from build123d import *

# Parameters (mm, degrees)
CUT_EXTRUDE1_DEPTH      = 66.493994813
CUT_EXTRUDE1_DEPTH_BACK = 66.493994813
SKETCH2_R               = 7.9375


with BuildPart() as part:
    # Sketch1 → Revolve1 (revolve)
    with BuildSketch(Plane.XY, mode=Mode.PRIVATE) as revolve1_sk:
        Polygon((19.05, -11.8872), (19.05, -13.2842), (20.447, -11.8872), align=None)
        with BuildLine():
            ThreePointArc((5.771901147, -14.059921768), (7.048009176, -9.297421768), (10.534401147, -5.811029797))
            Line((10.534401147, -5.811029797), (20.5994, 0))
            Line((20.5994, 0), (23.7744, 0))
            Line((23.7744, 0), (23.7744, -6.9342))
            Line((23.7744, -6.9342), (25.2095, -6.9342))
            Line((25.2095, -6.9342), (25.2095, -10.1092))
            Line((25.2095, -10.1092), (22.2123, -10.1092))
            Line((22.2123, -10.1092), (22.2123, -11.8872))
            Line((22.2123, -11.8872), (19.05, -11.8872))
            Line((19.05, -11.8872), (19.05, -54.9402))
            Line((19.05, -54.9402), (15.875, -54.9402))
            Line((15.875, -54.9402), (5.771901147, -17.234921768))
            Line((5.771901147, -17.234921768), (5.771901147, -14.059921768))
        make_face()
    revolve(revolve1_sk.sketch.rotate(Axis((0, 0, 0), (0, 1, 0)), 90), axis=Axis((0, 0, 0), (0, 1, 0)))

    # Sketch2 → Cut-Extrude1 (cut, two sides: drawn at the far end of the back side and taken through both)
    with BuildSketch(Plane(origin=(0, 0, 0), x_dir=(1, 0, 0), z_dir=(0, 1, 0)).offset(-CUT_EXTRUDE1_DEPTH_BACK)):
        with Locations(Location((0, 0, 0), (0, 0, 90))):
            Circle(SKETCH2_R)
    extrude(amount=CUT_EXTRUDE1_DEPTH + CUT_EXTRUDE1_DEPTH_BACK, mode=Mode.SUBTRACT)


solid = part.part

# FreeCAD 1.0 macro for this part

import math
import FreeCAD as App
import Part
import Sketcher

V = App.Vector
Q = App.Units.Quantity

doc = App.newDocument("Part")
body = doc.addObject("PartDesign::Body", "Body")

# Sketch on XY plane
sketch1 = body.newObject("Sketcher::SketchObject", "Sketch")
sketch1.AttachmentSupport = (doc.getObject("XY_Plane"), [""])
sketch1.MapMode = "FlatFace"
sketch1.addGeometry([
    Part.LineSegment(V(19.1, -13.3, 0), V(20.4, -11.9, 0)),  # 0
    Part.LineSegment(V(20.4, -11.9, 0), V(22.2, -11.9, 0)),  # 1
    Part.LineSegment(V(22.2, -11.9, 0), V(22.2, -10.1, 0)),  # 2
    Part.LineSegment(V(22.2, -10.1, 0), V(25.2, -10.1, 0)),  # 3
    Part.LineSegment(V(25.2, -10.1, 0), V(25.2, -6.9, 0)),  # 4
    Part.LineSegment(V(25.2, -6.9, 0), V(23.8, -6.9, 0)),  # 5
    Part.LineSegment(V(23.8, -6.9, 0), V(23.8, 0, 0)),  # 6
    Part.LineSegment(V(23.8, 0, 0), V(20.6, 0, 0)),  # 7
    Part.LineSegment(V(20.6, 0, 0), V(10.5, -5.8, 0)),  # 8
    Part.ArcOfCircle(Part.Circle(V(15.3, -14.1, 0), V(0, 0, 1), 9.5), math.radians(120), math.radians(180)),  # 9
    Part.LineSegment(V(5.8, -14.1, 0), V(5.8, -17.2, 0)),  # 10
    Part.LineSegment(V(5.8, -17.2, 0), V(15.9, -54.9, 0)),  # 11
    Part.LineSegment(V(15.9, -54.9, 0), V(19.1, -54.9, 0)),  # 12
    Part.LineSegment(V(19.1, -54.9, 0), V(19.1, -13.3, 0)),  # 13
], False)
sketch1.addConstraint([
    Sketcher.Constraint("Coincident", 0, 2, 1, 1),
    Sketcher.Constraint("Coincident", 1, 2, 2, 1),
    Sketcher.Constraint("Coincident", 2, 2, 3, 1),
    Sketcher.Constraint("Coincident", 3, 2, 4, 1),
    Sketcher.Constraint("Coincident", 4, 2, 5, 1),
    Sketcher.Constraint("Coincident", 5, 2, 6, 1),
    Sketcher.Constraint("Coincident", 6, 2, 7, 1),
    Sketcher.Constraint("Coincident", 7, 2, 8, 1),
    Sketcher.Constraint("Tangent", 8, 2, 9, 1),
    Sketcher.Constraint("Tangent", 9, 2, 10, 1),
    Sketcher.Constraint("Coincident", 10, 2, 11, 1),
    Sketcher.Constraint("Coincident", 11, 2, 12, 1),
    Sketcher.Constraint("Coincident", 12, 2, 13, 1),
    Sketcher.Constraint("Coincident", 13, 2, 0, 1),
    Sketcher.Constraint("Horizontal", 1),
    Sketcher.Constraint("Vertical", 2),
    Sketcher.Constraint("Horizontal", 3),
    Sketcher.Constraint("Vertical", 4),
    Sketcher.Constraint("Horizontal", 5),
    Sketcher.Constraint("Vertical", 6),
    Sketcher.Constraint("Horizontal", 7),
    Sketcher.Constraint("Vertical", 10),
    Sketcher.Constraint("Horizontal", 12),
    Sketcher.Constraint("Vertical", 13),
    Sketcher.Constraint("PointOnObject", 6, 2, -1),
    Sketcher.Constraint("Equal", 7, 12),
    Sketcher.Constraint("Equal", 12, 4),
    Sketcher.Constraint("Equal", 4, 10),
    Sketcher.Constraint("Angle", 0, Q("45 deg")),
    Sketcher.Constraint("Angle", 8, Q("-150 deg")),
    Sketcher.Constraint("Angle", 11, Q("-75 deg")),
    Sketcher.Constraint("Radius", 9, Q("0.375 in")),
    Sketcher.Constraint("DistanceY", 2, 1, 2, 2, Q("0.07 in")),
    Sketcher.Constraint("DistanceY", 13, 1, 13, 2, Q("1.64 in")),
    Sketcher.Constraint("DistanceX", 3, 1, 3, 2, Q("0.118 in")),
    Sketcher.Constraint("DistanceX", 7, 2, 7, 1, Q("0.125 in")),
    Sketcher.Constraint("DistanceY", 6, 1, 6, 2, Q("0.273 in")),
    Sketcher.Constraint("DistanceX", -1, 1, 12, 2, Q("0.75 in")),
    Sketcher.Constraint("DistanceX", 11, 2, 0, 2, Q("0.18 in")),
    Sketcher.Constraint("DistanceX", 1, 1, 1, 2, Q("0.0695 in")),
    Sketcher.Constraint("DistanceX", 5, 2, 5, 1, Q("0.0565 in")),
])
revolution = body.newObject("PartDesign::Revolution", "Revolution")
revolution.Profile = sketch1
revolution.ReferenceAxis = (sketch1, ["V_Axis"])
revolution.Angle = 360

# Sketch on XZ plane
sketch2 = body.newObject("Sketcher::SketchObject", "Sketch001")
sketch2.AttachmentSupport = (doc.getObject("XZ_Plane"), [""])
sketch2.MapMode = "FlatFace"
sketch2.addGeometry(Part.Circle(V(0, 0, 0), V(0, 0, 1), 8), False)
sketch2.addConstraint([
    Sketcher.Constraint("Coincident", 0, 3, -1, 1),
    Sketcher.Constraint("Diameter", 0, Q("0.625 in")),
])
pocket1 = body.newObject("PartDesign::Pocket", "Pocket")
pocket1.Profile = sketch2
pocket1.Type = "ThroughAll"
pocket1.Midplane = True

doc.recompute()
